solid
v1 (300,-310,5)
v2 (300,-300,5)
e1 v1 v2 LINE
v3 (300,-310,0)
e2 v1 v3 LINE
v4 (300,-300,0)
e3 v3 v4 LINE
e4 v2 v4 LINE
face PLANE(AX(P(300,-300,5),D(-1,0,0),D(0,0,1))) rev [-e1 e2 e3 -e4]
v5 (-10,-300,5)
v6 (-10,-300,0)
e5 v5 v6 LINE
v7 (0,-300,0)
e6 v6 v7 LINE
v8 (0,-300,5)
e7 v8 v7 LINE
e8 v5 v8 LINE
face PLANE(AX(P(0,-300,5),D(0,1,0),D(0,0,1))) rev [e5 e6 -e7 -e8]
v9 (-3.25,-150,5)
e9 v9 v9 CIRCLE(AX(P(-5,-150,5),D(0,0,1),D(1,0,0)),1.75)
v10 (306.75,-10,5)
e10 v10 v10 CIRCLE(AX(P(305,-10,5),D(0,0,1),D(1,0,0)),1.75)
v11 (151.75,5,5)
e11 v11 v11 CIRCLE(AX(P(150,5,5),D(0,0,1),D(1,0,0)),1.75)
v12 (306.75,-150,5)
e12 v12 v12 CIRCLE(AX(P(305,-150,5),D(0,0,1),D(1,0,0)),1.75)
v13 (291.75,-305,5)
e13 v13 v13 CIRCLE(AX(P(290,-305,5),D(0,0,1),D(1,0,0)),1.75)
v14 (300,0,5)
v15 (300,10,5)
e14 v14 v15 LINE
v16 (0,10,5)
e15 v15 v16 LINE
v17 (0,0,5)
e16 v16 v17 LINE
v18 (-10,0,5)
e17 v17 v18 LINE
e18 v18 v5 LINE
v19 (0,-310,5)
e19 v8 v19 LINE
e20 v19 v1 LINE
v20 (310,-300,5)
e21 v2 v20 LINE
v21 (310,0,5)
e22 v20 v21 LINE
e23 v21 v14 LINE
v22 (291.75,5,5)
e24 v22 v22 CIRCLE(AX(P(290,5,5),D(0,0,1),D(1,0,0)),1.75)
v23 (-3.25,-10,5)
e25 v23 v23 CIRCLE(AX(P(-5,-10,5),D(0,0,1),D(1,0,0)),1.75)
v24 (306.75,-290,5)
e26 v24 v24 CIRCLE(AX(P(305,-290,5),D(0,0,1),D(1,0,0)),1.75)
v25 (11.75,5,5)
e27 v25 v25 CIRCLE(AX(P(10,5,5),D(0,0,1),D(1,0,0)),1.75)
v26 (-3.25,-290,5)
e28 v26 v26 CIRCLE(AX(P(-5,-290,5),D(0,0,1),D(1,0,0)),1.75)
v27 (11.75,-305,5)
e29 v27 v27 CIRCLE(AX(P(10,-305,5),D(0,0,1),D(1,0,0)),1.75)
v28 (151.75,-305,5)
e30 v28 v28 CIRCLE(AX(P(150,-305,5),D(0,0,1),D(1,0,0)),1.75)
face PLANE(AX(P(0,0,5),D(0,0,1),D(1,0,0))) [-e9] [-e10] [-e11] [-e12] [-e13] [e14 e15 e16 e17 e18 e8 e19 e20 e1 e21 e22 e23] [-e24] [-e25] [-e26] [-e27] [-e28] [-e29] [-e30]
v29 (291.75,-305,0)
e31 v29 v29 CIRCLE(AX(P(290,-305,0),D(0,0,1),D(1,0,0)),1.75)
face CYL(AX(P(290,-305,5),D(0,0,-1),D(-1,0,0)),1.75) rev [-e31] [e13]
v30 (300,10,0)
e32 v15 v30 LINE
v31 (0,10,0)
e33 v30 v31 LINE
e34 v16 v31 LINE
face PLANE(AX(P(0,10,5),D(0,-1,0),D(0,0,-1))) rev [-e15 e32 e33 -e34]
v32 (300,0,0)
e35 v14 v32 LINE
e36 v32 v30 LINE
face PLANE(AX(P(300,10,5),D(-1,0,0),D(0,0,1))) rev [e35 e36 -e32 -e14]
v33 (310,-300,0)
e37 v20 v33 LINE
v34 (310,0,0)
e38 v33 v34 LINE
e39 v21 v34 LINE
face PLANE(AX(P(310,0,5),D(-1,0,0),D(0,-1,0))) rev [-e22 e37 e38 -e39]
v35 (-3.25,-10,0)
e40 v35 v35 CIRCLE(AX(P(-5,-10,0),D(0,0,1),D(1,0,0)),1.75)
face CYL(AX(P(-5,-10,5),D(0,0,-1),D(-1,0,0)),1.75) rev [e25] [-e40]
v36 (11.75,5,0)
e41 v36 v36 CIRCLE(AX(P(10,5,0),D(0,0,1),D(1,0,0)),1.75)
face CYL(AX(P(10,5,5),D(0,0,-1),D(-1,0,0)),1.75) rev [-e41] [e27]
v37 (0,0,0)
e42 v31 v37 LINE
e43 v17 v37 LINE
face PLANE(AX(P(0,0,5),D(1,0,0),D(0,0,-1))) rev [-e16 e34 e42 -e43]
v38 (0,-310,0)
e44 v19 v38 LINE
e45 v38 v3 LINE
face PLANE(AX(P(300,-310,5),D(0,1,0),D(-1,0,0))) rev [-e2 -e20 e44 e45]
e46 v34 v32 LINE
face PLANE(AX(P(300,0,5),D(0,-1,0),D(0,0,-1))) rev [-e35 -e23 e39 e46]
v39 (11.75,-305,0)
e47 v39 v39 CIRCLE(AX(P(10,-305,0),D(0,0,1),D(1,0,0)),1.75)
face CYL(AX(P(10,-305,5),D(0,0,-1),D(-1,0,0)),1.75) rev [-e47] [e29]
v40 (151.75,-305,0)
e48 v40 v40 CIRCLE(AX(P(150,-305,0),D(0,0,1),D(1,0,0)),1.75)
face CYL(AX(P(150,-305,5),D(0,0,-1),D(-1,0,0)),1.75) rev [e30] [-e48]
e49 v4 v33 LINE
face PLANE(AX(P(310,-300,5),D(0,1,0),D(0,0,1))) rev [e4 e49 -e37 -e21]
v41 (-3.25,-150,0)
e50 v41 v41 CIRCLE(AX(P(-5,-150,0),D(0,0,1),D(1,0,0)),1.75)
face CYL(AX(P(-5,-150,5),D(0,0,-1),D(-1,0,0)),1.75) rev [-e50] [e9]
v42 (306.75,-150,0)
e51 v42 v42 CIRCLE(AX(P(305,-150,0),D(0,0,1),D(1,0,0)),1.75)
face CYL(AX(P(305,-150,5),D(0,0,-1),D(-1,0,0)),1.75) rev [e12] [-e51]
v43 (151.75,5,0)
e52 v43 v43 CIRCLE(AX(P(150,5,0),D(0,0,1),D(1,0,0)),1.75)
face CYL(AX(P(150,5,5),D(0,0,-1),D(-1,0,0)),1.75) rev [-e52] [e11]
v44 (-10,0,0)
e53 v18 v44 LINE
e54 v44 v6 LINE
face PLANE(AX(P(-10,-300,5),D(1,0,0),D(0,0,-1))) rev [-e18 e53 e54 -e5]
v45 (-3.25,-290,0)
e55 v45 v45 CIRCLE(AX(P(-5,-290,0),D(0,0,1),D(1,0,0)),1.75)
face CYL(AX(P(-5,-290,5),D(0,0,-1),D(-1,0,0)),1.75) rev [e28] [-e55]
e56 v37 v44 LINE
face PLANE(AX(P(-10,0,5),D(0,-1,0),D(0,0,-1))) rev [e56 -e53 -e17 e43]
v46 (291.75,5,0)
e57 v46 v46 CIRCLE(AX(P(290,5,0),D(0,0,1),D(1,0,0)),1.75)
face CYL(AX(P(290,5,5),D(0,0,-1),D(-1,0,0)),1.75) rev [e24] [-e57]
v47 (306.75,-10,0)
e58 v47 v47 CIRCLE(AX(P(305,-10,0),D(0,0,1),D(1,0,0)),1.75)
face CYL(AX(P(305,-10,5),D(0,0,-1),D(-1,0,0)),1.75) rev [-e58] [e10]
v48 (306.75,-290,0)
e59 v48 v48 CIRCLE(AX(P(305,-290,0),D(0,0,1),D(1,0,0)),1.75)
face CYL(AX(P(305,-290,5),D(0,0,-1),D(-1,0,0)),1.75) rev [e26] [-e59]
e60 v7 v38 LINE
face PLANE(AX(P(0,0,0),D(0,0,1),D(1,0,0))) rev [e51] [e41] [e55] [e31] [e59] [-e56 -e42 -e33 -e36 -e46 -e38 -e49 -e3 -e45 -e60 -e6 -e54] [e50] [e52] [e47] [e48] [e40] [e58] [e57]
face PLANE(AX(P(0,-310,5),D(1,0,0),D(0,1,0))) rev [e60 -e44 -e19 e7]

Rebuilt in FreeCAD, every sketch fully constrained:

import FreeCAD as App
import Part
import Sketcher
Q = App.Units.Quantity


def add_polygon(sketch, points):
    """Adds a closed chain of lines whose ends are joined by coincident constraints."""
    first, n = sketch.GeometryCount, len(points)
    for a, b in zip(points, points[1:] + points[:1]):
        sketch.addGeometry(Part.LineSegment(App.Vector(*a, 0), App.Vector(*b, 0)), False)
    for i in range(n):
        sketch.addConstraint(Sketcher.Constraint("Coincident", first + i, 2, first + (i + 1) % n, 1))

doc = App.newDocument("Part")
params = doc.addObject("Spreadsheet::Sheet", "Params")
for row, (alias, value) in enumerate([
    ("sketch1_diameter", "3.5 mm"),
    ("sketch1_width", "10 mm"),
    ("sketch1_width2", "300 mm"),
    ("pad1_length", "5 mm"),
], start=1):
    params.set(f"A{row}", alias)
    params.set(f"B{row}", "=" + value)
    params.setAlias(f"B{row}", alias)

body = doc.addObject("PartDesign::Body", "Body")

sketch1 = body.newObject("Sketcher::SketchObject", "Sketch")
sketch1.AttachmentSupport = (doc.getObject("XY_Plane"), [""])
sketch1.MapMode = "FlatFace"
add_polygon(sketch1, [(0, 10), (0, 0), (-10, 0), (-10, -300), (0, -300), (0, -310), (300, -310), (300, -300), (310, -300), (310, 0), (300, 0), (300, 10)])
sketch1.addGeometry(Part.Circle(App.Vector(290, -305, 0), App.Vector(0, 0, 1), 1.8), False)
sketch1.addGeometry(Part.Circle(App.Vector(305, -290, 0), App.Vector(0, 0, 1), 1.8), False)
sketch1.addGeometry(Part.Circle(App.Vector(150, -305, 0), App.Vector(0, 0, 1), 1.8), False)
sketch1.addGeometry(Part.Circle(App.Vector(10, -305, 0), App.Vector(0, 0, 1), 1.8), False)
sketch1.addGeometry(Part.Circle(App.Vector(-5, -290, 0), App.Vector(0, 0, 1), 1.8), False)
sketch1.addGeometry(Part.Circle(App.Vector(305, -150, 0), App.Vector(0, 0, 1), 1.8), False)
sketch1.addGeometry(Part.Circle(App.Vector(305, -10, 0), App.Vector(0, 0, 1), 1.8), False)
sketch1.addGeometry(Part.Circle(App.Vector(290, 5, 0), App.Vector(0, 0, 1), 1.8), False)
sketch1.addGeometry(Part.Circle(App.Vector(-5, -150, 0), App.Vector(0, 0, 1), 1.8), False)
sketch1.addGeometry(Part.Circle(App.Vector(150, 5, 0), App.Vector(0, 0, 1), 1.8), False)
sketch1.addGeometry(Part.Circle(App.Vector(-5, -10, 0), App.Vector(0, 0, 1), 1.8), False)
sketch1.addGeometry(Part.Circle(App.Vector(10, 5, 0), App.Vector(0, 0, 1), 1.8), False)
sketch1.addConstraint(Sketcher.Constraint("Vertical", 0))
sketch1.addConstraint(Sketcher.Constraint("Horizontal", 1))
sketch1.addConstraint(Sketcher.Constraint("Vertical", 2))
sketch1.addConstraint(Sketcher.Constraint("Horizontal", 3))
sketch1.addConstraint(Sketcher.Constraint("Vertical", 4))
sketch1.addConstraint(Sketcher.Constraint("Horizontal", 5))
sketch1.addConstraint(Sketcher.Constraint("Vertical", 6))
sketch1.addConstraint(Sketcher.Constraint("Horizontal", 7))
sketch1.addConstraint(Sketcher.Constraint("Vertical", 8))
sketch1.addConstraint(Sketcher.Constraint("Horizontal", 9))
sketch1.addConstraint(Sketcher.Constraint("Vertical", 10))
sketch1.addConstraint(Sketcher.Constraint("Horizontal", 11))
sketch1.addConstraint(Sketcher.Constraint("Coincident", 0, 2, -1, 1))
sketch1.addConstraint(Sketcher.Constraint("Equal", 12, 13))
sketch1.addConstraint(Sketcher.Constraint("Equal", 13, 14))
sketch1.addConstraint(Sketcher.Constraint("Equal", 14, 15))
sketch1.addConstraint(Sketcher.Constraint("Equal", 15, 16))
sketch1.addConstraint(Sketcher.Constraint("Equal", 16, 17))
sketch1.addConstraint(Sketcher.Constraint("Equal", 17, 18))
sketch1.addConstraint(Sketcher.Constraint("Equal", 18, 19))
sketch1.addConstraint(Sketcher.Constraint("Equal", 19, 20))
sketch1.addConstraint(Sketcher.Constraint("Equal", 20, 21))
sketch1.addConstraint(Sketcher.Constraint("Equal", 21, 22))
sketch1.addConstraint(Sketcher.Constraint("Equal", 22, 23))
sketch1.addConstraint(Sketcher.Constraint("PointOnObject", 3, 2, -2))
sketch1.addConstraint(Sketcher.Constraint("PointOnObject", 8, 2, -1))
sketch1.addConstraint(Sketcher.Constraint("Horizontal", 12, 3, 14, 3))
sketch1.addConstraint(Sketcher.Constraint("Horizontal", 14, 3, 15, 3))
sketch1.addConstraint(Sketcher.Constraint("Horizontal", 13, 3, 16, 3))
sketch1.addConstraint(Sketcher.Constraint("Horizontal", 17, 3, 20, 3))
sketch1.addConstraint(Sketcher.Constraint("Horizontal", 19, 3, 21, 3))
sketch1.addConstraint(Sketcher.Constraint("Horizontal", 18, 3, 22, 3))
sketch1.addConstraint(Sketcher.Constraint("Horizontal", 21, 3, 23, 3))
sketch1.addConstraint(Sketcher.Constraint("Horizontal", 3, 2, 6, 2))
sketch1.addConstraint(Sketcher.Constraint("Vertical", 13, 3, 17, 3))
sketch1.addConstraint(Sketcher.Constraint("Vertical", 17, 3, 18, 3))
sketch1.addConstraint(Sketcher.Constraint("Vertical", 12, 3, 19, 3))
sketch1.addConstraint(Sketcher.Constraint("Vertical", 16, 3, 20, 3))
sketch1.addConstraint(Sketcher.Constraint("Vertical", 14, 3, 21, 3))
sketch1.addConstraint(Sketcher.Constraint("Vertical", 20, 3, 22, 3))
sketch1.addConstraint(Sketcher.Constraint("Vertical", 15, 3, 23, 3))
sketch1.addConstraint(Sketcher.Constraint("Vertical", 6, 2, 9, 2))
sketch1.addConstraint(Sketcher.Constraint("Equal", 3, 7))
sketch1.addConstraint(Sketcher.Constraint("Equal", 9, 0))
sketch1.addConstraint(Sketcher.Constraint("Equal", 11, 2))
sketch1.addConstraint(Sketcher.Constraint("Equal", 0, 4))
sketch1.addConstraint(Sketcher.Constraint("Diameter", 12, Q("3.5 mm")))
sketch1.addConstraint(Sketcher.Constraint("DistanceX", 1, 2, 1, 1, Q("10 mm")))
sketch1.addConstraint(Sketcher.Constraint("DistanceX", 5, 1, 5, 2, Q("300 mm")))
sketch1.addConstraint(Sketcher.Constraint("DistanceX", -1, 1, 12, 3, Q("290 mm")))
sketch1.addConstraint(Sketcher.Constraint("DistanceY", 12, 3, -1, 1, Q("305 mm")))
sketch1.addConstraint(Sketcher.Constraint("DistanceX", -1, 1, 13, 3, Q("305 mm")))
sketch1.addConstraint(Sketcher.Constraint("DistanceY", 13, 3, -1, 1, Q("290 mm")))
sketch1.addConstraint(Sketcher.Constraint("DistanceX", -1, 1, 14, 3, Q("150 mm")))
sketch1.addConstraint(Sketcher.Constraint("DistanceX", -1, 1, 15, 3, Q("10 mm")))
sketch1.addConstraint(Sketcher.Constraint("DistanceX", 16, 3, -1, 1, Q("5 mm")))
sketch1.addConstraint(Sketcher.Constraint("DistanceY", 17, 3, -1, 1, Q("150 mm")))
sketch1.addConstraint(Sketcher.Constraint("DistanceY", 18, 3, -1, 1, Q("10 mm")))
sketch1.addConstraint(Sketcher.Constraint("DistanceY", -1, 1, 19, 3, Q("5 mm")))
sketch1.setExpression("Constraints[58]", "Params.sketch1_diameter")
sketch1.setExpression("Constraints[59]", "Params.sketch1_width")
sketch1.setExpression("Constraints[60]", "Params.sketch1_width2")
pad1 = body.newObject("PartDesign::Pad", "Pad")
pad1.Profile = sketch1
pad1.setExpression("Length", "Params.pad1_length")

doc.recompute()
